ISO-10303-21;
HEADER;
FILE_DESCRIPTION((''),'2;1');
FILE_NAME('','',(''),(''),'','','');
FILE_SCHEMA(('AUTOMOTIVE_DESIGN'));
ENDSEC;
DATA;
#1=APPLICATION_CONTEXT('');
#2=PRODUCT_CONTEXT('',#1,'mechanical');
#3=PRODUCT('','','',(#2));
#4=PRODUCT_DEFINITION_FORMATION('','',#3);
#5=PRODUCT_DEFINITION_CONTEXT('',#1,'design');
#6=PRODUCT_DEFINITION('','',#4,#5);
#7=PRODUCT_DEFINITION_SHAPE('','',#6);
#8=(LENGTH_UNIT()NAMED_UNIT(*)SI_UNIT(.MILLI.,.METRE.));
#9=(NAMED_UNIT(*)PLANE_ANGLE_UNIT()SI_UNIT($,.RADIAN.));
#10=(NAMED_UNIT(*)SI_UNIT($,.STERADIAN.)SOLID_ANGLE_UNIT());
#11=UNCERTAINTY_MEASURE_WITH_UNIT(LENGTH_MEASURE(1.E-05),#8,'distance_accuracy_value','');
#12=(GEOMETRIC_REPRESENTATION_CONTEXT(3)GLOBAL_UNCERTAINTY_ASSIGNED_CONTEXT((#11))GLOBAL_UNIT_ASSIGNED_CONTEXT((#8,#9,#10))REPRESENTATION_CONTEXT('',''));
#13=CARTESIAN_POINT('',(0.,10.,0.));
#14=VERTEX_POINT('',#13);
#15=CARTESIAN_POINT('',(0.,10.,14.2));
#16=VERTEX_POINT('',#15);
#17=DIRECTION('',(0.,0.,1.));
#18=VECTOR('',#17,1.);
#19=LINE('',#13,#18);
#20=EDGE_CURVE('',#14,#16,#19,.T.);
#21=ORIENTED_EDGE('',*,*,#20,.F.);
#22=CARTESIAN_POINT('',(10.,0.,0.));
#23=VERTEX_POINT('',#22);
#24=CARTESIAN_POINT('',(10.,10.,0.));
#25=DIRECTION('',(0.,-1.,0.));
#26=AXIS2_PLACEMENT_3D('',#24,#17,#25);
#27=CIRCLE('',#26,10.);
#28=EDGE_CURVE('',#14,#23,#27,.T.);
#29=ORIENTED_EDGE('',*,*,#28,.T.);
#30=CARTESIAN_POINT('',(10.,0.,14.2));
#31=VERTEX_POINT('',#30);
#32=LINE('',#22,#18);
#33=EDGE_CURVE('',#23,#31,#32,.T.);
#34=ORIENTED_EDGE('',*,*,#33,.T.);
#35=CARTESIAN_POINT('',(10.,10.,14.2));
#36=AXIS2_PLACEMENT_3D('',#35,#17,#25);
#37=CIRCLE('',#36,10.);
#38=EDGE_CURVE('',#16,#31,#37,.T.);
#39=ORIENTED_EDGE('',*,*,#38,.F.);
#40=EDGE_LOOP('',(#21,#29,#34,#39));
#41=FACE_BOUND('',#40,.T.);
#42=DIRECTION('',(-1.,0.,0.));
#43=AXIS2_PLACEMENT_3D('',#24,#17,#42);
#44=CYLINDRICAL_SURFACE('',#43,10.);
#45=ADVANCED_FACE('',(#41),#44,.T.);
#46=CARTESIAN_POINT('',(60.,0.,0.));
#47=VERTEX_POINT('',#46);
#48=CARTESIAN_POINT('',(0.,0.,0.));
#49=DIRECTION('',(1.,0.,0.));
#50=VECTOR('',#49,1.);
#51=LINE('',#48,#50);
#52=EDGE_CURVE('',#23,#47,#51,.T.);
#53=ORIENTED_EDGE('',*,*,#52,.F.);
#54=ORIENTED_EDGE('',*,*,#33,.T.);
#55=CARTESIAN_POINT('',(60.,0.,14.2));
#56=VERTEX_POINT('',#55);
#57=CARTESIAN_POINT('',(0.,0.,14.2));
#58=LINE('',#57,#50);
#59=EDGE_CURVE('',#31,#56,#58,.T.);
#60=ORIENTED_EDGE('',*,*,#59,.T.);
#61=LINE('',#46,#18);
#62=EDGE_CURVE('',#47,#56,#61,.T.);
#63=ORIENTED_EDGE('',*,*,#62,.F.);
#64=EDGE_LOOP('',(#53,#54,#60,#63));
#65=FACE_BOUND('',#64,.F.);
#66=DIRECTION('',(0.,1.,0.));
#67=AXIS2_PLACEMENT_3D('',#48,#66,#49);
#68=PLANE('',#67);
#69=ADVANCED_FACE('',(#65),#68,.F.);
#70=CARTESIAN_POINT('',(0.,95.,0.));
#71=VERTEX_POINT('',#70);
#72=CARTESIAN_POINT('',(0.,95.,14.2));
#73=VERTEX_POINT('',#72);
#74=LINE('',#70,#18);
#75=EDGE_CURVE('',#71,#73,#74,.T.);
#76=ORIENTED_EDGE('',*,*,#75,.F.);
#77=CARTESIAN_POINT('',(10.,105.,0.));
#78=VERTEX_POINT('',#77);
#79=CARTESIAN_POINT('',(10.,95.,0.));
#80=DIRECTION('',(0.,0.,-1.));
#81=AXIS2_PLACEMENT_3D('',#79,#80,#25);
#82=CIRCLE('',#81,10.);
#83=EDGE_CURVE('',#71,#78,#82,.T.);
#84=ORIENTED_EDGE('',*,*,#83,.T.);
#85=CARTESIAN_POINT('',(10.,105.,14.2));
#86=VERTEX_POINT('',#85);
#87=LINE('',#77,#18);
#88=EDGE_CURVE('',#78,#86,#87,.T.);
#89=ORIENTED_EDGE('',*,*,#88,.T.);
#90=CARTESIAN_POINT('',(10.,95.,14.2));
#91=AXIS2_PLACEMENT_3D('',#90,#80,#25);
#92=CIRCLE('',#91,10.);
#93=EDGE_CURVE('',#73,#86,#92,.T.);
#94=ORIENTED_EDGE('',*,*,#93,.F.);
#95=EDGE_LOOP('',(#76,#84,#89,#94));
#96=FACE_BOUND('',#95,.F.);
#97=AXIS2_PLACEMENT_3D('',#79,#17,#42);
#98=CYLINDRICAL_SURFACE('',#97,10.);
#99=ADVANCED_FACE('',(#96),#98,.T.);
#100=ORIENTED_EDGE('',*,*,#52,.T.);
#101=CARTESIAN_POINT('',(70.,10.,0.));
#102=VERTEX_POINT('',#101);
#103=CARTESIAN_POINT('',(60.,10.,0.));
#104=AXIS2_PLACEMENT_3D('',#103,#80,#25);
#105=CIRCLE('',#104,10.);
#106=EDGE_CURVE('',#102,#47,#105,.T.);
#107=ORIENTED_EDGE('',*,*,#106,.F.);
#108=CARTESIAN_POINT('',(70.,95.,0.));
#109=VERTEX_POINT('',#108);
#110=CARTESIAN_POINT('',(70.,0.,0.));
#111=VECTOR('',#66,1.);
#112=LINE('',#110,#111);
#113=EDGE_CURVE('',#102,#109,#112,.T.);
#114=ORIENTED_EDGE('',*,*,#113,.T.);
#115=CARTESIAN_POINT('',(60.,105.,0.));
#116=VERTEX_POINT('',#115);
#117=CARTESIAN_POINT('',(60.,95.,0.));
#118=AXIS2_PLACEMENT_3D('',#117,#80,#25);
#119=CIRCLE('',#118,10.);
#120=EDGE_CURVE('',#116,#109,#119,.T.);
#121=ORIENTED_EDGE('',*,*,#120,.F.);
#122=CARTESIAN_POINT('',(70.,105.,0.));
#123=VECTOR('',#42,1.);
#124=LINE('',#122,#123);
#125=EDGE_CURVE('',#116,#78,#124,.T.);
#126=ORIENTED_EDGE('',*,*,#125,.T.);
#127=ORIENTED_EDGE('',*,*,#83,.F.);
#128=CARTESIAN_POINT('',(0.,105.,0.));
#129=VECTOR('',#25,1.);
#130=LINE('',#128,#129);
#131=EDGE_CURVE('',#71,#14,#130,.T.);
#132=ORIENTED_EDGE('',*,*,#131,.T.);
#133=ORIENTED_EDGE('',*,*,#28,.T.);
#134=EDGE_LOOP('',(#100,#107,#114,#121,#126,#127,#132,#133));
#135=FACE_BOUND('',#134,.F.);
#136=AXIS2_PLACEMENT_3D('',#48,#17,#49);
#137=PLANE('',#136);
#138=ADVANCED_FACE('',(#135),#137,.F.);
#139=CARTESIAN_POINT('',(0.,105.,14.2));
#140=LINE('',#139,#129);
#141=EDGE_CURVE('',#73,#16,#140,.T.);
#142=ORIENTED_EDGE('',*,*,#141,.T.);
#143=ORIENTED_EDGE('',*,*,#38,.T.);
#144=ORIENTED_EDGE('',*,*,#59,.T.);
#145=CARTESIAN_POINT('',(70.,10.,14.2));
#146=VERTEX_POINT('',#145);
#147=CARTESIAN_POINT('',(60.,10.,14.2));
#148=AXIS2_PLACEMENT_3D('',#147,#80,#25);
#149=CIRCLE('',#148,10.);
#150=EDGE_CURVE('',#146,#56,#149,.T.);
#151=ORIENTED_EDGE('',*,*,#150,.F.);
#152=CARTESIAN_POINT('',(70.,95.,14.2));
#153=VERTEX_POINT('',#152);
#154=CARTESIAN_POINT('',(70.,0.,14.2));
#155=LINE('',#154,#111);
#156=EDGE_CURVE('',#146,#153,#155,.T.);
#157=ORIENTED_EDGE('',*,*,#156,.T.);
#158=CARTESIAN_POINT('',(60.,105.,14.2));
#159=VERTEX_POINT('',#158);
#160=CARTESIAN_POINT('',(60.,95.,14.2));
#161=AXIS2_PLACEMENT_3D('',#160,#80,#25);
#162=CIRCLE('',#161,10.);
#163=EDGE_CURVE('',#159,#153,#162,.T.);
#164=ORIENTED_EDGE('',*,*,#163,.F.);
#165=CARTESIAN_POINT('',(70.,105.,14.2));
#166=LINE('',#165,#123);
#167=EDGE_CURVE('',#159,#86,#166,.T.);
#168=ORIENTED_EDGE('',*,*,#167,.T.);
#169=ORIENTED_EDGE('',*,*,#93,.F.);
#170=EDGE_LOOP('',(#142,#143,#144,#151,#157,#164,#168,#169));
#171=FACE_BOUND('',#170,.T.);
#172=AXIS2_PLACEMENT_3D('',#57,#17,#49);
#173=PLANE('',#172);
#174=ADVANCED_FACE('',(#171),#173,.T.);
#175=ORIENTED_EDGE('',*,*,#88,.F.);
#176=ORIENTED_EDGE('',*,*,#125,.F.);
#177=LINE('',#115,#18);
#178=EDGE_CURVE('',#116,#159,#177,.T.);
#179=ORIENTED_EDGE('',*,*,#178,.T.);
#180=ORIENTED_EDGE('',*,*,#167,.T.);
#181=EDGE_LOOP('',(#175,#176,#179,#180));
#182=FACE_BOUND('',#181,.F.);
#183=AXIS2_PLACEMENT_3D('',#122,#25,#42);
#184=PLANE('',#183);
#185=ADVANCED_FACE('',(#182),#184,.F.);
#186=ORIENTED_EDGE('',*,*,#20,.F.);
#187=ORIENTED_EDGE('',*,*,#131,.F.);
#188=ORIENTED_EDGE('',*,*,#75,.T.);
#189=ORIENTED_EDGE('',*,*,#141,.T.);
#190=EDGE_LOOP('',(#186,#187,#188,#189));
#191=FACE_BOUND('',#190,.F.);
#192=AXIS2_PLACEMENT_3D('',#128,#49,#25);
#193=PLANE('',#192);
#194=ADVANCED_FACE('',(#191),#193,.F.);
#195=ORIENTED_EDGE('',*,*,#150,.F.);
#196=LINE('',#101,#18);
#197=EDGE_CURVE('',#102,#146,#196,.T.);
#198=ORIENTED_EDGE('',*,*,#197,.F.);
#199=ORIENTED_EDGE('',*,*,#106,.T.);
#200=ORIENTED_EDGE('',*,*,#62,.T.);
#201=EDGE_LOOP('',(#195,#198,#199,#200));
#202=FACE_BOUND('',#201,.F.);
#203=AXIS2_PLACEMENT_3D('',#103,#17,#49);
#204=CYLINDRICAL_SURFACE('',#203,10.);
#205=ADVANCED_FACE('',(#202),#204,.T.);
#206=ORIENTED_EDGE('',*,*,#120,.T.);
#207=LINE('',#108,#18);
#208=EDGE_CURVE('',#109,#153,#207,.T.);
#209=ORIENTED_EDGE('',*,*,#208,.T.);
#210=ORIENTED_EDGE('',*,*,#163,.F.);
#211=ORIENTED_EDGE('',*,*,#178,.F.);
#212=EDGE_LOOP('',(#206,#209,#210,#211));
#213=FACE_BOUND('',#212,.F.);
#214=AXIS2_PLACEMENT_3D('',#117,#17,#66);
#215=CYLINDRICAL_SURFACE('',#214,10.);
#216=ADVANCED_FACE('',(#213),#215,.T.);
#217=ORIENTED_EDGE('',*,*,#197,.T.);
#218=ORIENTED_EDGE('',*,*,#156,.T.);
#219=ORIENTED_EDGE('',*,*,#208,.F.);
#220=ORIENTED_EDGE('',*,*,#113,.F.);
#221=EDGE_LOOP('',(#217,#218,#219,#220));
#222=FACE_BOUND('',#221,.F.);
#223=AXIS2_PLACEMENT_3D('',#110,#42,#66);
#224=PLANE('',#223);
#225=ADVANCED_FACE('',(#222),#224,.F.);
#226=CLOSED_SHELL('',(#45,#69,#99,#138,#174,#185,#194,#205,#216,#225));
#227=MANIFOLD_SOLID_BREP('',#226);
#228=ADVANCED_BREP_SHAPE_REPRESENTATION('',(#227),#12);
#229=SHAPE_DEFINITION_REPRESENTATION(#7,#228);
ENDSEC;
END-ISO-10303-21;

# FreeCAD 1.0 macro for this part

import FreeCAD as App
import Part
import Sketcher

V = App.Vector
Q = App.Units.Quantity


def edges_at(feature, points):
    """Names of the edges that pass closest to the given points."""
    edges = feature.Shape.Edges
    near = lambda p: min(range(len(edges)), key=lambda i: edges[i].distToShape(Part.Vertex(*p))[0])
    return sorted({f"Edge{near(p) + 1}" for p in points})


def add_polygon(sketch, points):
    """Adds a closed chain of lines whose ends are joined by coincident constraints."""
    first, n = sketch.GeometryCount, len(points)
    for a, b in zip(points, points[1:] + points[:1]):
        sketch.addGeometry(Part.LineSegment(App.Vector(*a, 0), App.Vector(*b, 0)), False)
    for i in range(n):
        sketch.addConstraint(Sketcher.Constraint("Coincident", first + i, 2, first + (i + 1) % n, 1))

doc = App.newDocument("Part")
body = doc.addObject("PartDesign::Body", "Body")

# Sketch on XY plane
sketch1 = body.newObject("Sketcher::SketchObject", "Sketch")
sketch1.AttachmentSupport = (doc.getObject("XY_Plane"), [""])
sketch1.MapMode = "FlatFace"
add_polygon(sketch1, [(0, 105), (0, 0), (70, 0), (70, 105)])  # lines 0-3
sketch1.addConstraint([
    Sketcher.Constraint("Vertical", 0),
    Sketcher.Constraint("Horizontal", 1),
    Sketcher.Constraint("Vertical", 2),
    Sketcher.Constraint("Horizontal", 3),
    Sketcher.Constraint("Coincident", 0, 2, -1, 1),
    Sketcher.Constraint("DistanceX", 1, 1, 1, 2, Q("70 mm")),
    Sketcher.Constraint("DistanceY", 0, 2, 0, 1, Q("105 mm")),
])
pad1 = body.newObject("PartDesign::Pad", "Pad")
pad1.Profile = sketch1
pad1.Length = 14.2
doc.recompute()

fillet = body.newObject("PartDesign::Fillet", "Fillet")
fillet.Base = (pad1, edges_at(pad1, [
    (70, 0, 7.1),
    (0, 0, 7.1),
    (70, 105, 7.1),
    (0, 105, 7.1),
]))
fillet.Radius = 10

doc.recompute()
